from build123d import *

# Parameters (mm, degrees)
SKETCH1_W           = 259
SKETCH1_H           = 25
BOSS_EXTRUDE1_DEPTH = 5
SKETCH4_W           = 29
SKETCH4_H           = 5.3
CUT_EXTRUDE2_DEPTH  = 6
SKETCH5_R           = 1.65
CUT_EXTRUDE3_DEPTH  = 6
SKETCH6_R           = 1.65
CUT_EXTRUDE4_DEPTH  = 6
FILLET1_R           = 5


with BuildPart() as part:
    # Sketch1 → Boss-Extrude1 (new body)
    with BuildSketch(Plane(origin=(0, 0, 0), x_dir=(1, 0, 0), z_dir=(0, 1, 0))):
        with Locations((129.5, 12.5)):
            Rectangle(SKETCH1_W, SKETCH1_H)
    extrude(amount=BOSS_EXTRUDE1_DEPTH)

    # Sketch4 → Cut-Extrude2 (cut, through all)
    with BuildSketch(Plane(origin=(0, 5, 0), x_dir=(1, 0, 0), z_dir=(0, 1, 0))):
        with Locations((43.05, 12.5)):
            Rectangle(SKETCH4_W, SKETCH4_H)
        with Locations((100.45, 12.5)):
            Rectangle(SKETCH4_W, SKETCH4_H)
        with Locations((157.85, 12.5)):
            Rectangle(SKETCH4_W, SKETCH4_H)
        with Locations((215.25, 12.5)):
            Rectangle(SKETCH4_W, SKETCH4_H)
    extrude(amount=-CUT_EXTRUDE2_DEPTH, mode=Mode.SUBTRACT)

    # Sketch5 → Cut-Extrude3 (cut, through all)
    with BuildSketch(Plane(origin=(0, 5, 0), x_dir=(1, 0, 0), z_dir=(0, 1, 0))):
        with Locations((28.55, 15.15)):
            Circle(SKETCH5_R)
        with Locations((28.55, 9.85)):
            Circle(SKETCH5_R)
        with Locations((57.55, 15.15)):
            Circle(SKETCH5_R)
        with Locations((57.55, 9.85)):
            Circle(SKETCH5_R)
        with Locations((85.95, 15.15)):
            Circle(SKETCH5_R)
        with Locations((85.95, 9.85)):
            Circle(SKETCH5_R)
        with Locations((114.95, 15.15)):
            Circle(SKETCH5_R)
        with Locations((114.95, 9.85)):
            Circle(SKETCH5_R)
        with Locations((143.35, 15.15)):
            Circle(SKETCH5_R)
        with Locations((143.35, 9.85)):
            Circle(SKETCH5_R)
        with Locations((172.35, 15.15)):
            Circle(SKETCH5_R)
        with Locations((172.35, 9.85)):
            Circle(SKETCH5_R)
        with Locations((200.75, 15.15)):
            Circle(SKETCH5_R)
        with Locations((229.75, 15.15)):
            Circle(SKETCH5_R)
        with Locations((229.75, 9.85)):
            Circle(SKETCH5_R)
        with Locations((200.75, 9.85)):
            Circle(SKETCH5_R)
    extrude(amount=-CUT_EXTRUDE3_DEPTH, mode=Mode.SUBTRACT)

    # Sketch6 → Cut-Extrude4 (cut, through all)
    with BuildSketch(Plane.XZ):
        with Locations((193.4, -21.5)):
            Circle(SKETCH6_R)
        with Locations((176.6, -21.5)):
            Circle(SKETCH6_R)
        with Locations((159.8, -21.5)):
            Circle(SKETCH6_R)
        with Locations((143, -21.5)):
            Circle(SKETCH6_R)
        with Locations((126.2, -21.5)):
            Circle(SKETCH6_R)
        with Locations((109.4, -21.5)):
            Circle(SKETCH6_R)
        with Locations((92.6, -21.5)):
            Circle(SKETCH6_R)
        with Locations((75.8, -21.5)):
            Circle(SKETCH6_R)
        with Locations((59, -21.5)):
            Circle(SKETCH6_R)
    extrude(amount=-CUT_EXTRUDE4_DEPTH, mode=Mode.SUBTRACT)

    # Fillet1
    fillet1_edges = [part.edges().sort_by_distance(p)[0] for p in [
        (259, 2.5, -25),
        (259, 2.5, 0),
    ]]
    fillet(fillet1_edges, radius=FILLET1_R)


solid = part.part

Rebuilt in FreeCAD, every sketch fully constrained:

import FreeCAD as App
import Part
import Sketcher


def edges_at(feature, points):
    """Names of the edges that pass closest to the given points."""
    edges = feature.Shape.Edges
    near = lambda p: min(range(len(edges)), key=lambda i: edges[i].distToShape(Part.Vertex(*p))[0])
    return sorted({f"Edge{near(p) + 1}" for p in points})


def add_polygon(sketch, points):
    """Adds a closed chain of lines whose ends are joined by coincident constraints."""
    first, n = sketch.GeometryCount, len(points)
    for a, b in zip(points, points[1:] + points[:1]):
        sketch.addGeometry(Part.LineSegment(App.Vector(*a, 0), App.Vector(*b, 0)), False)
    for i in range(n):
        sketch.addConstraint(Sketcher.Constraint("Coincident", first + i, 2, first + (i + 1) % n, 1))

doc = App.newDocument("Part")
body = doc.addObject("PartDesign::Body", "Body")

# Sketch on XZ plane
sketch1 = doc.addObject("Sketcher::SketchObject", "Sketch")
body.addObject(sketch1)
sketch1.AttachmentSupport = (doc.XZ_Plane, [""])
sketch1.MapMode = "FlatFace"
add_polygon(sketch1, [(0, -25), (0, 0), (259, 0), (259, -25)])  # lines 0-3
sketch1.addConstraint(Sketcher.Constraint("Vertical", 0))
sketch1.addConstraint(Sketcher.Constraint("Horizontal", 1))
sketch1.addConstraint(Sketcher.Constraint("Vertical", 2))
sketch1.addConstraint(Sketcher.Constraint("Horizontal", 3))
sketch1.addConstraint(Sketcher.Constraint("Coincident", 0, 2, -1, 1))
sketch1.addConstraint(Sketcher.Constraint("DistanceX", 1, 1, 1, 2, 259.0))
sketch1.addConstraint(Sketcher.Constraint("DistanceY", 0, 1, 0, 2, 25.0))
pad1 = doc.addObject("PartDesign::Pad", "Pad")
body.addObject(pad1)
pad1.Profile = sketch1
pad1.Length = 5
pad1.Reversed = True

# Sketch on XZ plane
sketch2 = doc.addObject("Sketcher::SketchObject", "Sketch001")
body.addObject(sketch2)
sketch2.AttachmentSupport = (doc.XZ_Plane, [""])
sketch2.MapMode = "FlatFace"
sketch2.AttachmentOffset = App.Placement(App.Vector(0, 0, -5), App.Rotation())
add_polygon(sketch2, [(29, -15), (29, -10), (58, -10), (58, -15)])  # lines 0-3
add_polygon(sketch2, [(86, -15), (86, -10), (115, -10), (115, -15)])  # lines 4-7
add_polygon(sketch2, [(143, -15), (143, -10), (172, -10), (172, -15)])  # lines 8-11
add_polygon(sketch2, [(201, -15), (201, -10), (230, -10), (230, -15)])  # lines 12-15
sketch2.addConstraint(Sketcher.Constraint("Vertical", 0))
sketch2.addConstraint(Sketcher.Constraint("Horizontal", 1))
sketch2.addConstraint(Sketcher.Constraint("Vertical", 2))
sketch2.addConstraint(Sketcher.Constraint("Horizontal", 3))
sketch2.addConstraint(Sketcher.Constraint("Vertical", 4))
sketch2.addConstraint(Sketcher.Constraint("Horizontal", 5))
sketch2.addConstraint(Sketcher.Constraint("Vertical", 6))
sketch2.addConstraint(Sketcher.Constraint("Horizontal", 7))
sketch2.addConstraint(Sketcher.Constraint("Vertical", 8))
sketch2.addConstraint(Sketcher.Constraint("Horizontal", 9))
sketch2.addConstraint(Sketcher.Constraint("Vertical", 10))
sketch2.addConstraint(Sketcher.Constraint("Horizontal", 11))
sketch2.addConstraint(Sketcher.Constraint("Vertical", 12))
sketch2.addConstraint(Sketcher.Constraint("Horizontal", 13))
sketch2.addConstraint(Sketcher.Constraint("Vertical", 14))
sketch2.addConstraint(Sketcher.Constraint("Horizontal", 15))
sketch2.addConstraint(Sketcher.Constraint("Horizontal", 1, 2, 4, 2))
sketch2.addConstraint(Sketcher.Constraint("Horizontal", 3, 2, 6, 2))
sketch2.addConstraint(Sketcher.Constraint("Horizontal", 5, 2, 8, 2))
sketch2.addConstraint(Sketcher.Constraint("Horizontal", 7, 2, 10, 2))
sketch2.addConstraint(Sketcher.Constraint("Horizontal", 9, 2, 12, 2))
sketch2.addConstraint(Sketcher.Constraint("Horizontal", 11, 2, 14, 2))
sketch2.addConstraint(Sketcher.Constraint("Equal", 3, 5))
sketch2.addConstraint(Sketcher.Constraint("Equal", 7, 9))
sketch2.addConstraint(Sketcher.Constraint("Equal", 11, 13))
sketch2.addConstraint(Sketcher.Constraint("DistanceX", 1, 1, 1, 2, 29.0))
sketch2.addConstraint(Sketcher.Constraint("DistanceY", 0, 1, 0, 2, 5.3))
sketch2.addConstraint(Sketcher.Constraint("DistanceX", 1, 2, 4, 2, 28.4))
sketch2.addConstraint(Sketcher.Constraint("DistanceX", 5, 2, 8, 2, 28.4))
sketch2.addConstraint(Sketcher.Constraint("DistanceX", 9, 2, 12, 2, 28.4))
sketch2.addConstraint(Sketcher.Constraint("DistanceX", -1, 1, 0, 2, 28.55))
sketch2.addConstraint(Sketcher.Constraint("DistanceY", 0, 2, -1, 1, 9.85))
pocket1 = doc.addObject("PartDesign::Pocket", "Pocket")
body.addObject(pocket1)
pocket1.Profile = sketch2
pocket1.Type = "ThroughAll"
pocket1.Reversed = True

# Sketch on XZ plane
sketch3 = doc.addObject("Sketcher::SketchObject", "Sketch002")
body.addObject(sketch3)
sketch3.AttachmentSupport = (doc.XZ_Plane, [""])
sketch3.MapMode = "FlatFace"
sketch3.AttachmentOffset = App.Placement(App.Vector(0, 0, -5), App.Rotation())
sketch3.addGeometry(Part.Circle(App.Vector(28.6, -15.2, 0), App.Vector(0, 0, 1), 1.6), False)
sketch3.addGeometry(Part.Circle(App.Vector(28.6, -9.8, 0), App.Vector(0, 0, 1), 1.6), False)
sketch3.addGeometry(Part.Circle(App.Vector(57.5, -15.2, 0), App.Vector(0, 0, 1), 1.6), False)
sketch3.addGeometry(Part.Circle(App.Vector(57.5, -9.8, 0), App.Vector(0, 0, 1), 1.6), False)
sketch3.addGeometry(Part.Circle(App.Vector(86, -15.2, 0), App.Vector(0, 0, 1), 1.6), False)
sketch3.addGeometry(Part.Circle(App.Vector(86, -9.8, 0), App.Vector(0, 0, 1), 1.6), False)
sketch3.addGeometry(Part.Circle(App.Vector(115, -15.2, 0), App.Vector(0, 0, 1), 1.6), False)
sketch3.addGeometry(Part.Circle(App.Vector(115, -9.8, 0), App.Vector(0, 0, 1), 1.6), False)
sketch3.addGeometry(Part.Circle(App.Vector(143.3, -15.2, 0), App.Vector(0, 0, 1), 1.6), False)
sketch3.addGeometry(Part.Circle(App.Vector(143.3, -9.8, 0), App.Vector(0, 0, 1), 1.6), False)
sketch3.addGeometry(Part.Circle(App.Vector(172.3, -15.2, 0), App.Vector(0, 0, 1), 1.6), False)
sketch3.addGeometry(Part.Circle(App.Vector(172.3, -9.8, 0), App.Vector(0, 0, 1), 1.6), False)
sketch3.addGeometry(Part.Circle(App.Vector(200.8, -15.2, 0), App.Vector(0, 0, 1), 1.6), False)
sketch3.addGeometry(Part.Circle(App.Vector(229.8, -15.2, 0), App.Vector(0, 0, 1), 1.6), False)
sketch3.addGeometry(Part.Circle(App.Vector(229.8, -9.8, 0), App.Vector(0, 0, 1), 1.6), False)
sketch3.addGeometry(Part.Circle(App.Vector(200.8, -9.8, 0), App.Vector(0, 0, 1), 1.6), False)
sketch3.addConstraint(Sketcher.Constraint("Equal", 0, 1))
sketch3.addConstraint(Sketcher.Constraint("Equal", 1, 2))
sketch3.addConstraint(Sketcher.Constraint("Equal", 2, 3))
sketch3.addConstraint(Sketcher.Constraint("Equal", 3, 4))
sketch3.addConstraint(Sketcher.Constraint("Equal", 4, 5))
sketch3.addConstraint(Sketcher.Constraint("Equal", 5, 6))
sketch3.addConstraint(Sketcher.Constraint("Equal", 6, 7))
sketch3.addConstraint(Sketcher.Constraint("Equal", 7, 8))
sketch3.addConstraint(Sketcher.Constraint("Equal", 8, 9))
sketch3.addConstraint(Sketcher.Constraint("Equal", 9, 10))
sketch3.addConstraint(Sketcher.Constraint("Equal", 10, 11))
sketch3.addConstraint(Sketcher.Constraint("Equal", 11, 12))
sketch3.addConstraint(Sketcher.Constraint("Equal", 12, 13))
sketch3.addConstraint(Sketcher.Constraint("Equal", 13, 14))
sketch3.addConstraint(Sketcher.Constraint("Equal", 14, 15))
sketch3.addConstraint(Sketcher.Constraint("Horizontal", 0, 3, 2, 3))
sketch3.addConstraint(Sketcher.Constraint("Horizontal", 1, 3, 3, 3))
sketch3.addConstraint(Sketcher.Constraint("Horizontal", 2, 3, 4, 3))
sketch3.addConstraint(Sketcher.Constraint("Horizontal", 3, 3, 5, 3))
sketch3.addConstraint(Sketcher.Constraint("Horizontal", 4, 3, 6, 3))
sketch3.addConstraint(Sketcher.Constraint("Horizontal", 5, 3, 7, 3))
sketch3.addConstraint(Sketcher.Constraint("Horizontal", 6, 3, 8, 3))
sketch3.addConstraint(Sketcher.Constraint("Horizontal", 7, 3, 9, 3))
sketch3.addConstraint(Sketcher.Constraint("Horizontal", 8, 3, 10, 3))
sketch3.addConstraint(Sketcher.Constraint("Horizontal", 9, 3, 11, 3))
sketch3.addConstraint(Sketcher.Constraint("Horizontal", 10, 3, 12, 3))
sketch3.addConstraint(Sketcher.Constraint("Horizontal", 12, 3, 13, 3))
sketch3.addConstraint(Sketcher.Constraint("Horizontal", 11, 3, 14, 3))
sketch3.addConstraint(Sketcher.Constraint("Horizontal", 14, 3, 15, 3))
sketch3.addConstraint(Sketcher.Constraint("Vertical", 0, 3, 1, 3))
sketch3.addConstraint(Sketcher.Constraint("Vertical", 2, 3, 3, 3))
sketch3.addConstraint(Sketcher.Constraint("Vertical", 4, 3, 5, 3))
sketch3.addConstraint(Sketcher.Constraint("Vertical", 6, 3, 7, 3))
sketch3.addConstraint(Sketcher.Constraint("Vertical", 8, 3, 9, 3))
sketch3.addConstraint(Sketcher.Constraint("Vertical", 10, 3, 11, 3))
sketch3.addConstraint(Sketcher.Constraint("Vertical", 13, 3, 14, 3))
sketch3.addConstraint(Sketcher.Constraint("Vertical", 12, 3, 15, 3))
sketch3.addConstraint(Sketcher.Constraint("Diameter", 0, 3.3))
sketch3.addConstraint(Sketcher.Constraint("DistanceX", 0, 3, 2, 3, 29.0))
sketch3.addConstraint(Sketcher.Constraint("DistanceX", 4, 3, 6, 3, 29.0))
sketch3.addConstraint(Sketcher.Constraint("DistanceX", 8, 3, 10, 3, 29.0))
sketch3.addConstraint(Sketcher.Constraint("DistanceX", 12, 3, 13, 3, 29.0))
sketch3.addConstraint(Sketcher.Constraint("DistanceY", 0, 3, 1, 3, 5.3))
sketch3.addConstraint(Sketcher.Constraint("DistanceX", 2, 3, 4, 3, 28.4))
sketch3.addConstraint(Sketcher.Constraint("DistanceX", 6, 3, 8, 3, 28.4))
sketch3.addConstraint(Sketcher.Constraint("DistanceX", 10, 3, 12, 3, 28.4))
sketch3.addConstraint(Sketcher.Constraint("DistanceX", -1, 1, 0, 3, 28.55))
sketch3.addConstraint(Sketcher.Constraint("DistanceY", 0, 3, -1, 1, 15.15))
pocket2 = doc.addObject("PartDesign::Pocket", "Pocket001")
body.addObject(pocket2)
pocket2.Profile = sketch3
pocket2.Type = "ThroughAll"
pocket2.Reversed = True

# Sketch on XZ plane
sketch4 = doc.addObject("Sketcher::SketchObject", "Sketch003")
body.addObject(sketch4)
sketch4.AttachmentSupport = (doc.XZ_Plane, [""])
sketch4.MapMode = "FlatFace"
sketch4.addGeometry(Part.Circle(App.Vector(193.4, -21.5, 0), App.Vector(0, 0, 1), 1.6), False)
sketch4.addGeometry(Part.Circle(App.Vector(176.6, -21.5, 0), App.Vector(0, 0, 1), 1.6), False)
sketch4.addGeometry(Part.Circle(App.Vector(159.8, -21.5, 0), App.Vector(0, 0, 1), 1.6), False)
sketch4.addGeometry(Part.Circle(App.Vector(143, -21.5, 0), App.Vector(0, 0, 1), 1.6), False)
sketch4.addGeometry(Part.Circle(App.Vector(126.2, -21.5, 0), App.Vector(0, 0, 1), 1.6), False)
sketch4.addGeometry(Part.Circle(App.Vector(109.4, -21.5, 0), App.Vector(0, 0, 1), 1.6), False)
sketch4.addGeometry(Part.Circle(App.Vector(92.6, -21.5, 0), App.Vector(0, 0, 1), 1.6), False)
sketch4.addGeometry(Part.Circle(App.Vector(75.8, -21.5, 0), App.Vector(0, 0, 1), 1.6), False)
sketch4.addGeometry(Part.Circle(App.Vector(59, -21.5, 0), App.Vector(0, 0, 1), 1.6), False)
sketch4.addConstraint(Sketcher.Constraint("Equal", 0, 1))
sketch4.addConstraint(Sketcher.Constraint("Equal", 1, 2))
sketch4.addConstraint(Sketcher.Constraint("Equal", 2, 3))
sketch4.addConstraint(Sketcher.Constraint("Equal", 3, 4))
sketch4.addConstraint(Sketcher.Constraint("Equal", 4, 5))
sketch4.addConstraint(Sketcher.Constraint("Equal", 5, 6))
sketch4.addConstraint(Sketcher.Constraint("Equal", 6, 7))
sketch4.addConstraint(Sketcher.Constraint("Equal", 7, 8))
sketch4.addConstraint(Sketcher.Constraint("Horizontal", 0, 3, 1, 3))
sketch4.addConstraint(Sketcher.Constraint("Horizontal", 1, 3, 2, 3))
sketch4.addConstraint(Sketcher.Constraint("Horizontal", 2, 3, 3, 3))
sketch4.addConstraint(Sketcher.Constraint("Horizontal", 3, 3, 4, 3))
sketch4.addConstraint(Sketcher.Constraint("Horizontal", 4, 3, 5, 3))
sketch4.addConstraint(Sketcher.Constraint("Horizontal", 5, 3, 6, 3))
sketch4.addConstraint(Sketcher.Constraint("Horizontal", 6, 3, 7, 3))
sketch4.addConstraint(Sketcher.Constraint("Horizontal", 7, 3, 8, 3))
sketch4.addConstraint(Sketcher.Constraint("Diameter", 0, 3.3))
sketch4.addConstraint(Sketcher.Constraint("DistanceX", -1, 1, 3, 3, 143.0))
sketch4.addConstraint(Sketcher.Constraint("DistanceX", -1, 1, 8, 3, 59.0))
sketch4.addConstraint(Sketcher.Constraint("DistanceX", 5, 3, 0, 3, 84.0))
sketch4.addConstraint(Sketcher.Constraint("DistanceX", 6, 3, 1, 3, 84.0))
sketch4.addConstraint(Sketcher.Constraint("DistanceX", 7, 3, 2, 3, 84.0))
sketch4.addConstraint(Sketcher.Constraint("DistanceX", -1, 1, 0, 3, 193.4))
sketch4.addConstraint(Sketcher.Constraint("DistanceY", 0, 3, -1, 1, 21.5))
sketch4.addConstraint(Sketcher.Constraint("DistanceX", -1, 1, 1, 3, 176.6))
sketch4.addConstraint(Sketcher.Constraint("DistanceX", -1, 1, 2, 3, 159.8))
sketch4.addConstraint(Sketcher.Constraint("DistanceX", -1, 1, 4, 3, 126.2))
pocket3 = doc.addObject("PartDesign::Pocket", "Pocket002")
body.addObject(pocket3)
pocket3.Profile = sketch4
pocket3.Type = "ThroughAll"
doc.recompute()

fillet = doc.addObject("PartDesign::Fillet", "Fillet")
body.addObject(fillet)
fillet.Base = (pocket3, edges_at(pocket3, [(259, 2.5, -25), (259, 2.5, 0)]))
fillet.Radius = 5

doc.recompute()
